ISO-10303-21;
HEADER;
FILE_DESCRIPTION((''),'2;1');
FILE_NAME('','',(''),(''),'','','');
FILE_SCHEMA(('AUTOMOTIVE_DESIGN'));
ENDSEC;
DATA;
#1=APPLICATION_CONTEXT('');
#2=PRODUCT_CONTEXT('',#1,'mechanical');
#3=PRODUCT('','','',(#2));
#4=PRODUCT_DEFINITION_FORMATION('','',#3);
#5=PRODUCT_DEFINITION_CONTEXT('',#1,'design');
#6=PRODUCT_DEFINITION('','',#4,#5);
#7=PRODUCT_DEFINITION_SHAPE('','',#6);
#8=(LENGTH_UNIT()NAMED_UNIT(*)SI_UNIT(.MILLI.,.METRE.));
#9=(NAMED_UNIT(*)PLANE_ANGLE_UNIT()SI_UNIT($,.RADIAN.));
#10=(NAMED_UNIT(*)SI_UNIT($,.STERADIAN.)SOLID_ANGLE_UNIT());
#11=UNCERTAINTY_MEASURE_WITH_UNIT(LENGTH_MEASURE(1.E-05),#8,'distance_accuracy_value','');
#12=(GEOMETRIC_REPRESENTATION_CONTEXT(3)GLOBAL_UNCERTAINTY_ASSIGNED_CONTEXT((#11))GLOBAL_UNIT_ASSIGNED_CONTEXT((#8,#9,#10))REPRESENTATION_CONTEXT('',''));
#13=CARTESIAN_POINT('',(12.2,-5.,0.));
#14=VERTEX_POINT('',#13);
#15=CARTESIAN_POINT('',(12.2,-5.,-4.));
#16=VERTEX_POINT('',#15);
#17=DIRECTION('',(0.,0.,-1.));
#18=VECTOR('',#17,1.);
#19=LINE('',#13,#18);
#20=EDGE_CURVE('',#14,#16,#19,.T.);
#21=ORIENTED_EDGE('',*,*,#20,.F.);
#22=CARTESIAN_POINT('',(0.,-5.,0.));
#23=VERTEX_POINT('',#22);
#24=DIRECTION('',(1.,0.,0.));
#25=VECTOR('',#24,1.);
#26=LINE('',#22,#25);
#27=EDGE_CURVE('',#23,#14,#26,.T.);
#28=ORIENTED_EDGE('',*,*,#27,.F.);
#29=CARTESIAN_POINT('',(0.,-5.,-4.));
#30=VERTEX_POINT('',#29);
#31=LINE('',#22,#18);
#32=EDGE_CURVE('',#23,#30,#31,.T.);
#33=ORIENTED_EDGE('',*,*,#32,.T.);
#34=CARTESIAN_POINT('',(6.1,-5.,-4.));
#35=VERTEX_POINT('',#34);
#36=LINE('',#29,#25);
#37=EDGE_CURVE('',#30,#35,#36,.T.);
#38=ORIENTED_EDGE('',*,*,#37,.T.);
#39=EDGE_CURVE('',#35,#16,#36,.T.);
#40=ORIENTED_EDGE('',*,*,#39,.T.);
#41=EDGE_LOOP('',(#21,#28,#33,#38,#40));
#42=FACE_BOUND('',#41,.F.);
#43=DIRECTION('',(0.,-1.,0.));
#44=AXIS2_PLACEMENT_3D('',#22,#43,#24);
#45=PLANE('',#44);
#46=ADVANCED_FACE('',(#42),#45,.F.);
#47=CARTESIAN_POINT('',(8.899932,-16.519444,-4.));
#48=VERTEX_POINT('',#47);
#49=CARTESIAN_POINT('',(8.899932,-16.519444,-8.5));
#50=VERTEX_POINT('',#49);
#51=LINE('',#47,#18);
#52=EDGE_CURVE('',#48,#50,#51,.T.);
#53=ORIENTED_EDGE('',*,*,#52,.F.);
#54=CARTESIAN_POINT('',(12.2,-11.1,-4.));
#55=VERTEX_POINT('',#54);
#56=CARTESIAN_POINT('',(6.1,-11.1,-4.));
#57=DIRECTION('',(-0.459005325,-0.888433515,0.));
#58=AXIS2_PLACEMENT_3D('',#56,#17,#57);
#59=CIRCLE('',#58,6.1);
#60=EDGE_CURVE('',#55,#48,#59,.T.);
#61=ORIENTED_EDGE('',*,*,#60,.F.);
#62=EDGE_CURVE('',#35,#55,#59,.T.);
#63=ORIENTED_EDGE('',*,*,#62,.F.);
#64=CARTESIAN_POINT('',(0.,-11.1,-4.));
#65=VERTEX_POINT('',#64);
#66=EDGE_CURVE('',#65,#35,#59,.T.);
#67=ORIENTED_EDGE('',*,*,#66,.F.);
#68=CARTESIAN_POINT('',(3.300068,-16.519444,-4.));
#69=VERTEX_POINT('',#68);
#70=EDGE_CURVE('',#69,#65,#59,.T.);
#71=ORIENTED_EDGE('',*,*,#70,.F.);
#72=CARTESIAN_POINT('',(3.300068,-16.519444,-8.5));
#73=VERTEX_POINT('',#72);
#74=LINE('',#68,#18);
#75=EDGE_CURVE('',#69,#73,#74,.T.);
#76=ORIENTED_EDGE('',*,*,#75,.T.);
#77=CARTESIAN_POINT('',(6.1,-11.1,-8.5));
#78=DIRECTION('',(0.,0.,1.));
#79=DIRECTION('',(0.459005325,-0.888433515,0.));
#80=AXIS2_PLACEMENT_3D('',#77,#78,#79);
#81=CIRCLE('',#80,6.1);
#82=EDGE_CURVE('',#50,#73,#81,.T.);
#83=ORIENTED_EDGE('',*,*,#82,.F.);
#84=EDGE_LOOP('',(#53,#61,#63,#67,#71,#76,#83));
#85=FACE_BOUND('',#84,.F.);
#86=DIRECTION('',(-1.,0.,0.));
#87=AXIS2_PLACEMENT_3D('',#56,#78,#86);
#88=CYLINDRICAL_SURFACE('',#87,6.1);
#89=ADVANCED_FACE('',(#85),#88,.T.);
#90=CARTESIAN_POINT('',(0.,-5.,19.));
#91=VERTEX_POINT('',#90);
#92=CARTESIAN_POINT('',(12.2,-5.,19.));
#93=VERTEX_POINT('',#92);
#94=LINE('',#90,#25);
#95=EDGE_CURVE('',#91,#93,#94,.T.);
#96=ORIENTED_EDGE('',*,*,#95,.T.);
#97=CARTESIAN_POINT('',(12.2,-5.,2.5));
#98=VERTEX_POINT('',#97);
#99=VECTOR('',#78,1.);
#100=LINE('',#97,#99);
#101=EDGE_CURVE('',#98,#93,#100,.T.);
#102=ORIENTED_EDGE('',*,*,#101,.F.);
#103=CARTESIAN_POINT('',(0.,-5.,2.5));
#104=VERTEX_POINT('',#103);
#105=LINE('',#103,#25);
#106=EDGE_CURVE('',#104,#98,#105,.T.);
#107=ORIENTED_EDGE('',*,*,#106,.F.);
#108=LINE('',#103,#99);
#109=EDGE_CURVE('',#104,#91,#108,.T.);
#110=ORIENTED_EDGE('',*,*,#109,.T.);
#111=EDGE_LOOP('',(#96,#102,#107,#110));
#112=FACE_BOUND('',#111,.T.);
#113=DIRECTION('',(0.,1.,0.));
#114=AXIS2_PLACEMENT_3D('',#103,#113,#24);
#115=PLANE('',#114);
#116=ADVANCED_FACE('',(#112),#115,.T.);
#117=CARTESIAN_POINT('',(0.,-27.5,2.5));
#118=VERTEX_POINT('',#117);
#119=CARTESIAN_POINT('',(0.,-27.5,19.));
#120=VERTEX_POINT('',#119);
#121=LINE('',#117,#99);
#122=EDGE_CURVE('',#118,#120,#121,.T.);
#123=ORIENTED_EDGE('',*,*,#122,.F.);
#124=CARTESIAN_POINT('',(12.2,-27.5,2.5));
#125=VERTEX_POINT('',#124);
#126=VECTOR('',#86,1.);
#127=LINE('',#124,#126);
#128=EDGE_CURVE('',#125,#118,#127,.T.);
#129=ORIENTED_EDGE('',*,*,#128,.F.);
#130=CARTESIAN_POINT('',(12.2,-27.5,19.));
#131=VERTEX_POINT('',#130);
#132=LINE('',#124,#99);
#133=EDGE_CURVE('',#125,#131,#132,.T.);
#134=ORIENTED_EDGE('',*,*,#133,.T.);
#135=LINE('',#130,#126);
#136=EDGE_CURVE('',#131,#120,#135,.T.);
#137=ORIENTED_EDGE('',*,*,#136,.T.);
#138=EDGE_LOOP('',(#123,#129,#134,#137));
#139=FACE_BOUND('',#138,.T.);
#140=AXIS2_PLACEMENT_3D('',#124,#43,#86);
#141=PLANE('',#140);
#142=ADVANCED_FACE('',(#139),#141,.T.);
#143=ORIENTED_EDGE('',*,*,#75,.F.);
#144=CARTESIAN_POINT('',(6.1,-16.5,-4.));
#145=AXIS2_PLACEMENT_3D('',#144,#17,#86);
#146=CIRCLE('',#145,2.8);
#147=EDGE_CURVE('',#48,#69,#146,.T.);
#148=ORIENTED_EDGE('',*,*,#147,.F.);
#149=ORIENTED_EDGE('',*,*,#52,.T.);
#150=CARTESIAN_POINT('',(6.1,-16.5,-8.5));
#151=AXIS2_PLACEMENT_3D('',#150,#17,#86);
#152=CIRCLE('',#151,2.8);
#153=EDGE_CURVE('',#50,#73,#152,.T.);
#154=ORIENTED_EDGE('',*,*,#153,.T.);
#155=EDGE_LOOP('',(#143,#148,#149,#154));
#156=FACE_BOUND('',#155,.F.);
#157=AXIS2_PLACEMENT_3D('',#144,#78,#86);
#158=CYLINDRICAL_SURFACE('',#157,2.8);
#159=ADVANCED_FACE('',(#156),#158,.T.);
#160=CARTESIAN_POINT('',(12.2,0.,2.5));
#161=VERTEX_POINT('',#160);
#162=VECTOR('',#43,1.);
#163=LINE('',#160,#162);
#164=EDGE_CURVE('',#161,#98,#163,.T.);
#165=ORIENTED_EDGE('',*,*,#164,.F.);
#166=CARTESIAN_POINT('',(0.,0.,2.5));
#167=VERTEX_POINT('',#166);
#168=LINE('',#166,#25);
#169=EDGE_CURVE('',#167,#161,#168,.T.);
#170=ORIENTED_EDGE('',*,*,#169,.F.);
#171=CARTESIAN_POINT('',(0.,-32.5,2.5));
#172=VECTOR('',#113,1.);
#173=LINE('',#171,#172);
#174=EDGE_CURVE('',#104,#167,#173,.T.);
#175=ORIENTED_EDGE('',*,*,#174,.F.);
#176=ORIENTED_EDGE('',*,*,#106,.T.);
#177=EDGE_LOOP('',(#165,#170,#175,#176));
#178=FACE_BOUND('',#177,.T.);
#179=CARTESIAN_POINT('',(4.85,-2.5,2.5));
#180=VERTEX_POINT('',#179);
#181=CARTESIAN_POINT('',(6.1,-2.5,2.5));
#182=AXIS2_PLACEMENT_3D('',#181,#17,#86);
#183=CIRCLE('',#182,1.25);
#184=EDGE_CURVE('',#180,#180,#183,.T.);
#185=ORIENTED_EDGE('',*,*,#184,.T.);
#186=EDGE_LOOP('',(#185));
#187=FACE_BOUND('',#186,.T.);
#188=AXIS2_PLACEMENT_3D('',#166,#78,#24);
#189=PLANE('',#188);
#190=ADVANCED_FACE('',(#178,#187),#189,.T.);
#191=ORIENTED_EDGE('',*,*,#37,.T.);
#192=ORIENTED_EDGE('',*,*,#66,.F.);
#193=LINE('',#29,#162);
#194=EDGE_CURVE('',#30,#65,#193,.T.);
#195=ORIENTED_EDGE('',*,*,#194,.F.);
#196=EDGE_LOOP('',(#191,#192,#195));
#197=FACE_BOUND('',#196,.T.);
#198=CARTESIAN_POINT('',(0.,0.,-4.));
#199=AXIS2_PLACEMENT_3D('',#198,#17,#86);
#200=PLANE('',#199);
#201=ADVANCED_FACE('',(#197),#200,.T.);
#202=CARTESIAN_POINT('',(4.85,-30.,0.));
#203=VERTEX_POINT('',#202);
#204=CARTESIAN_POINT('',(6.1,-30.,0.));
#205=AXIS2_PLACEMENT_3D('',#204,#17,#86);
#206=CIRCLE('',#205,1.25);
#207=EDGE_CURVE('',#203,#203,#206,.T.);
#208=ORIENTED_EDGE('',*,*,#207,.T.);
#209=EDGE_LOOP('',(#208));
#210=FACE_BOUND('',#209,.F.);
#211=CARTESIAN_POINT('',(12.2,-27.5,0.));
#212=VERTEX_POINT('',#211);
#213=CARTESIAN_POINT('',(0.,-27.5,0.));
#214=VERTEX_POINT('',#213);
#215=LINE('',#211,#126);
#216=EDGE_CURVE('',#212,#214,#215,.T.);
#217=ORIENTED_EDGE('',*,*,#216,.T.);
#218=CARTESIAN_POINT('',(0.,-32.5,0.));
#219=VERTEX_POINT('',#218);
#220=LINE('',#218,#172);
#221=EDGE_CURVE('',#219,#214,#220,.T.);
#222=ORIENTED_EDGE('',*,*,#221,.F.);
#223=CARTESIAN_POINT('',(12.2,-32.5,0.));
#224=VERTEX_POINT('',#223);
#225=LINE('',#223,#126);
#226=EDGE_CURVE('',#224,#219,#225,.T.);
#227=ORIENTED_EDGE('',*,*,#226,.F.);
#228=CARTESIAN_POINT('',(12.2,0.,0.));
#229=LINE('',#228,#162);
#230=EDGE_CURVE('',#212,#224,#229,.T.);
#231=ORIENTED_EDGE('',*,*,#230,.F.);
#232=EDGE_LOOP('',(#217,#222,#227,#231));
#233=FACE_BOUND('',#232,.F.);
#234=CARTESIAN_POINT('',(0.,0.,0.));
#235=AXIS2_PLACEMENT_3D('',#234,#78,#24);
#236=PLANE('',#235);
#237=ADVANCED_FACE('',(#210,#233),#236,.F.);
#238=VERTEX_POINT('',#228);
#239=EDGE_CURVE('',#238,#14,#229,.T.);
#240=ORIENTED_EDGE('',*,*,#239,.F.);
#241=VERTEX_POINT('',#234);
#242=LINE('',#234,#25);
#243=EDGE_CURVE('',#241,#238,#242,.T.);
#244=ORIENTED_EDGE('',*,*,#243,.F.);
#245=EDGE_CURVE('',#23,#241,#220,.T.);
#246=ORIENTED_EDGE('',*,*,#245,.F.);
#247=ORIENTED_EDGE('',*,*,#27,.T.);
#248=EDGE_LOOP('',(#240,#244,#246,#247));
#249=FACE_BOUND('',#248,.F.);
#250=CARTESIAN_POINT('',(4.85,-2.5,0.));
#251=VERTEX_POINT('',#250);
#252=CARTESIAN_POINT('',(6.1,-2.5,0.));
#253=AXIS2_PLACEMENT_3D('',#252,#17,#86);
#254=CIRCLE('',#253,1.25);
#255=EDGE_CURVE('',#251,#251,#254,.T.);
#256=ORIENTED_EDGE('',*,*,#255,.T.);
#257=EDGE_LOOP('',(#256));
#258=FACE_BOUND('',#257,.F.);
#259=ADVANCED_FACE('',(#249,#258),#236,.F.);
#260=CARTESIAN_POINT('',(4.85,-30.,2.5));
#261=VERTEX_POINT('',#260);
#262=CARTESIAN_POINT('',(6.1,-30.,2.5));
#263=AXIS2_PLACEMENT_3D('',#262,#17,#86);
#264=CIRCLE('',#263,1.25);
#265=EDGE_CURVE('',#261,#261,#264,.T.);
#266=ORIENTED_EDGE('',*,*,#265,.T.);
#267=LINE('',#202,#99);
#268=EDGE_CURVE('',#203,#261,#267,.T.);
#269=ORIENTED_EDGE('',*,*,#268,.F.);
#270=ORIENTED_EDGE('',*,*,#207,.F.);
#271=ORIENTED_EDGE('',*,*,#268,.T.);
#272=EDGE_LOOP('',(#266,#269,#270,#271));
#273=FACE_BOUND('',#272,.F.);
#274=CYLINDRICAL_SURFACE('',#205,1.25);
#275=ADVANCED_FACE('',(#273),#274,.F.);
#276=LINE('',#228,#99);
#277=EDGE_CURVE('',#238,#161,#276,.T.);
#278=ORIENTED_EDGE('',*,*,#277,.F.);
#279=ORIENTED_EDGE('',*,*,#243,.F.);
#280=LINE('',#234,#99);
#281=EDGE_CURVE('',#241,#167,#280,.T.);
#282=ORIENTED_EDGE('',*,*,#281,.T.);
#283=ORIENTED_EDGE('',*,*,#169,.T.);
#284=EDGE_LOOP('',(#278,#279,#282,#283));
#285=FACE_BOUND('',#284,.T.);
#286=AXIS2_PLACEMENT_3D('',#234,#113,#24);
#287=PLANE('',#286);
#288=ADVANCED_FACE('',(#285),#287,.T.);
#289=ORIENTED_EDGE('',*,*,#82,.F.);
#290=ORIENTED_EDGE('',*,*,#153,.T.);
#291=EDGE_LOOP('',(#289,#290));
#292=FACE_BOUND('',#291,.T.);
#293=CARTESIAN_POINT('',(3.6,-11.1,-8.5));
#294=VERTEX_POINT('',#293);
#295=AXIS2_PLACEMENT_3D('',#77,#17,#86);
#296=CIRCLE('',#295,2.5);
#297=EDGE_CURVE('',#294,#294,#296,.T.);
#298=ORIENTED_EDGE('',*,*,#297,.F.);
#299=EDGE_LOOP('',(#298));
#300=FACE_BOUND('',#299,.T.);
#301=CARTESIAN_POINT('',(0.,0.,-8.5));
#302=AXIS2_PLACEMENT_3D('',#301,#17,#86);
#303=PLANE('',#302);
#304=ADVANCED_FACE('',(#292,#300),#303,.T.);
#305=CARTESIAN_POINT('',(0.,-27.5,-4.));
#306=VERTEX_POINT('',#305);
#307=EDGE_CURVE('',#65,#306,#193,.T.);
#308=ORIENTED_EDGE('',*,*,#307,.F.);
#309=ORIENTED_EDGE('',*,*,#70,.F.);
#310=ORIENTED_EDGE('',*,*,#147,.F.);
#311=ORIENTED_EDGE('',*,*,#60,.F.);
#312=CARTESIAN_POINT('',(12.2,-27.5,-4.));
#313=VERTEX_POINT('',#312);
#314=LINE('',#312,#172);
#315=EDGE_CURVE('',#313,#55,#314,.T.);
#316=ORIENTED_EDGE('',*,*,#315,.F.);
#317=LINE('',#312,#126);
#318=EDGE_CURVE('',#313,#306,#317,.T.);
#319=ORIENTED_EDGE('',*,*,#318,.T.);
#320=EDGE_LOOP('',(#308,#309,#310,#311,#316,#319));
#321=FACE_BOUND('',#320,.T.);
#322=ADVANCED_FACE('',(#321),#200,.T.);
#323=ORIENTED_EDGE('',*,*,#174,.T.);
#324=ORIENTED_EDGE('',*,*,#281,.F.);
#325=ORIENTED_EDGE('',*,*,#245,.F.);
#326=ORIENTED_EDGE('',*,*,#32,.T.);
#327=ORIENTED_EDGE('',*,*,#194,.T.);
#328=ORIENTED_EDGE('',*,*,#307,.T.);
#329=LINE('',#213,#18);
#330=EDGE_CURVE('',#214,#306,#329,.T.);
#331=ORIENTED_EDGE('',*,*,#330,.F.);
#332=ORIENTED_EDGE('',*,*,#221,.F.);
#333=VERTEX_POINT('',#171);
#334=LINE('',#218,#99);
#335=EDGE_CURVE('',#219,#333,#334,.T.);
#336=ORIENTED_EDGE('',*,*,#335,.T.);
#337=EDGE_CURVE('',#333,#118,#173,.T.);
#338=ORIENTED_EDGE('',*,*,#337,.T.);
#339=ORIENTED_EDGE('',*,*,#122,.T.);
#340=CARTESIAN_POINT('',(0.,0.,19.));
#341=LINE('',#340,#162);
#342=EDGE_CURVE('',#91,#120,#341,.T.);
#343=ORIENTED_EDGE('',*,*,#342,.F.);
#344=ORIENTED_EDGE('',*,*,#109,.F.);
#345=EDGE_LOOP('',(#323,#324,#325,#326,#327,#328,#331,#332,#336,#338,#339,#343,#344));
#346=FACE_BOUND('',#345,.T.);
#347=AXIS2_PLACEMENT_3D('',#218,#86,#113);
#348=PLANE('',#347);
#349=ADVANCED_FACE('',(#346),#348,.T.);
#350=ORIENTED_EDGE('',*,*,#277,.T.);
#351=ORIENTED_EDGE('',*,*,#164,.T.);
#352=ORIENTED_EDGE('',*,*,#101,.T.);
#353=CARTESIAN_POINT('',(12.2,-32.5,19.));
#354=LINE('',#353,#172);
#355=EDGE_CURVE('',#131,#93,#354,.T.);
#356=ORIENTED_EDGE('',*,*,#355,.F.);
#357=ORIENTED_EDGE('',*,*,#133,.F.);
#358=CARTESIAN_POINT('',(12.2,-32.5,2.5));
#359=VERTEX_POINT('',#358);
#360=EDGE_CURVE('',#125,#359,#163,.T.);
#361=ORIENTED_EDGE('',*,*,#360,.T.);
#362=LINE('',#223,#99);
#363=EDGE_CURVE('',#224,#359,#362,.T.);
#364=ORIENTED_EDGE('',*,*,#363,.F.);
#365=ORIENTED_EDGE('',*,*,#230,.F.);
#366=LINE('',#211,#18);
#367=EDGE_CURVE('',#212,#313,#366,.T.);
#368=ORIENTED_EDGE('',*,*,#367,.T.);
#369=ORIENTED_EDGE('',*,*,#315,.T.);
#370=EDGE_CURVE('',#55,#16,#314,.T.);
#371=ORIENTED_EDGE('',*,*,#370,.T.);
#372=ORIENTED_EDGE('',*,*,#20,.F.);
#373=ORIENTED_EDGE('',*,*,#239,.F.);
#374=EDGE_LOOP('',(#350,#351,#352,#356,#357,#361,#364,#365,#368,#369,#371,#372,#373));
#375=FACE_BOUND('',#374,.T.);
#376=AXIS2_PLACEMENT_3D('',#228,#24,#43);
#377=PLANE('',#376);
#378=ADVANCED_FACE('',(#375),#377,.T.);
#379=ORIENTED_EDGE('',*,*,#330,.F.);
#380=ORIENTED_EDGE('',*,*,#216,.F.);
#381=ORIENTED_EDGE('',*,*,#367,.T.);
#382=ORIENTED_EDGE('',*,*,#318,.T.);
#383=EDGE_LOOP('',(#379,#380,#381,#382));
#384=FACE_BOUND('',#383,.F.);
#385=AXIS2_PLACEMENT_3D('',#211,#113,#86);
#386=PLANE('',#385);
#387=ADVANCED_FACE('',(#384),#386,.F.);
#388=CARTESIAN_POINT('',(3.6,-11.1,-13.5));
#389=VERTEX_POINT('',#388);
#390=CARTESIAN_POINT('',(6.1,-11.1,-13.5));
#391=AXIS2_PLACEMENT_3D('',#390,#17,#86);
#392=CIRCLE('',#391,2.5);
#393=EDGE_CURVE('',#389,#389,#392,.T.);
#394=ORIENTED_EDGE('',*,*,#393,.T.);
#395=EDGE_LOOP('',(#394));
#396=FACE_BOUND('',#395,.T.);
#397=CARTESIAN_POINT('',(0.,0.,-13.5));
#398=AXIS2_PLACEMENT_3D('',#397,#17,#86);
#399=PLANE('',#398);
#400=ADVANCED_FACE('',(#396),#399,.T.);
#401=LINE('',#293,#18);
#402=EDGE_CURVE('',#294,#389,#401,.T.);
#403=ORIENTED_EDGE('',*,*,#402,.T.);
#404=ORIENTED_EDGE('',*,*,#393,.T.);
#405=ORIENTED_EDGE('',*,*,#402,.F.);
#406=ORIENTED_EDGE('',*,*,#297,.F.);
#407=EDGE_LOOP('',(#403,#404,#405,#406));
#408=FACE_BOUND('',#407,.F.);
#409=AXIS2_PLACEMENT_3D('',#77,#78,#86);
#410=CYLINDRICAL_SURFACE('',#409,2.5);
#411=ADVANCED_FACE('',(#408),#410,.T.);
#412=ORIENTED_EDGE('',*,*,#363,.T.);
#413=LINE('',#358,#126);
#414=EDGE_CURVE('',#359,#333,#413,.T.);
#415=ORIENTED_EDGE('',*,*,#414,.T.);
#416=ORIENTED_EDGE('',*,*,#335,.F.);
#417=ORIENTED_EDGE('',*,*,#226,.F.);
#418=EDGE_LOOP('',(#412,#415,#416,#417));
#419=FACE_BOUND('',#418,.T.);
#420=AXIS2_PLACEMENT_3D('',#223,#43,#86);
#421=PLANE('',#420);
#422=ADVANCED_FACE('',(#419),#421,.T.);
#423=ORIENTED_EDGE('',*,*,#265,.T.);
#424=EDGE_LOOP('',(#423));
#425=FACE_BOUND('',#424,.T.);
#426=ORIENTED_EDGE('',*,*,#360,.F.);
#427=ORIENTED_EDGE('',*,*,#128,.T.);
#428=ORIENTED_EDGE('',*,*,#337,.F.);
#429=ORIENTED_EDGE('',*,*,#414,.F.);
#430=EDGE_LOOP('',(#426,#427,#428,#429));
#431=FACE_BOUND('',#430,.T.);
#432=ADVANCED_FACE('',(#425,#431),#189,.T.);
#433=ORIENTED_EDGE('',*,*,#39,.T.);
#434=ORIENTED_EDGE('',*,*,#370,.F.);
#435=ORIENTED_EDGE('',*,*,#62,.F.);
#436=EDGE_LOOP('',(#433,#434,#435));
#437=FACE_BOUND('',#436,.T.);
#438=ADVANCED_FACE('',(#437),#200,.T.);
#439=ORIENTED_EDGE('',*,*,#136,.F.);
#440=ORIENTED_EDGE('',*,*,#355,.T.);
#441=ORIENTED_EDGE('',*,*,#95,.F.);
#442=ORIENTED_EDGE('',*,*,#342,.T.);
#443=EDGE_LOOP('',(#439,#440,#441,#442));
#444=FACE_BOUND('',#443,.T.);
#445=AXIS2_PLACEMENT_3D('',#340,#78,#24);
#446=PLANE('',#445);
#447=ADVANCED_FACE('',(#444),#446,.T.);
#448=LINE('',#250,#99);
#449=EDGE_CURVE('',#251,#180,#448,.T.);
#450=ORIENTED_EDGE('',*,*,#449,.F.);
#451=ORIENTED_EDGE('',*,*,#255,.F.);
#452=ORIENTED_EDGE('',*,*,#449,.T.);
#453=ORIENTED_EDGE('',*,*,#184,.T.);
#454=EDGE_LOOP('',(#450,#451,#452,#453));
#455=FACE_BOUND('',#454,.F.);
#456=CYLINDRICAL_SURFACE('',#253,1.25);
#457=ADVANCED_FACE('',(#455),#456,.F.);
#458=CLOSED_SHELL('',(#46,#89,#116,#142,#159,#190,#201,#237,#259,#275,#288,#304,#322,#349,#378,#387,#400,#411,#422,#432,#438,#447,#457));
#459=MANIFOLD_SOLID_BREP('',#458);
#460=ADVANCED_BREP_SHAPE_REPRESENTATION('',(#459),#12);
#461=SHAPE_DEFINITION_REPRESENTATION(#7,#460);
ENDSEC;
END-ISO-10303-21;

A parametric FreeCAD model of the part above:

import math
import FreeCAD as App
import Part
import Sketcher

V = App.Vector


def add_polygon(sketch, points):
    """Adds a closed chain of lines whose ends are joined by coincident constraints."""
    first, n = sketch.GeometryCount, len(points)
    for a, b in zip(points, points[1:] + points[:1]):
        sketch.addGeometry(Part.LineSegment(App.Vector(*a, 0), App.Vector(*b, 0)), False)
    for i in range(n):
        sketch.addConstraint(Sketcher.Constraint("Coincident", first + i, 2, first + (i + 1) % n, 1))

doc = App.newDocument("Part")
body = doc.addObject("PartDesign::Body", "Body")

# Sketch on XY plane
sketch1 = body.newObject("Sketcher::SketchObject", "Sketch")
sketch1.AttachmentSupport = (doc.getObject("XY_Plane"), [""])
sketch1.MapMode = "FlatFace"
add_polygon(sketch1, [(12, 0), (0, 0), (0, -32), (12, -32)])  # lines 0-3
sketch1.addConstraint([
    Sketcher.Constraint("Horizontal", 0),
    Sketcher.Constraint("Vertical", 1),
    Sketcher.Constraint("Horizontal", 2),
    Sketcher.Constraint("Vertical", 3),
    Sketcher.Constraint("Coincident", 0, 2, -1, 1),
    Sketcher.Constraint("DistanceX", 0, 2, 0, 1, 12.2),
    Sketcher.Constraint("DistanceY", 1, 2, 1, 1, 32.5),
])
pad1 = body.newObject("PartDesign::Pad", "Pad")
pad1.Profile = sketch1
pad1.Length = 2.5

# Sketch on XY plane
sketch2 = body.newObject("Sketcher::SketchObject", "Sketch001")
sketch2.AttachmentSupport = (doc.getObject("XY_Plane"), [""])
sketch2.MapMode = "FlatFace"
sketch2.AttachmentOffset = App.Placement(V(0, 0, 2.5), App.Rotation())
add_polygon(sketch2, [(12, -5), (0, -5), (0, -28), (12, -28)])  # lines 0-3
sketch2.addConstraint([
    Sketcher.Constraint("Horizontal", 0),
    Sketcher.Constraint("Vertical", 1),
    Sketcher.Constraint("Horizontal", 2),
    Sketcher.Constraint("Vertical", 3),
    Sketcher.Constraint("PointOnObject", 0, 2, -2),
    Sketcher.Constraint("DistanceY", 1, 2, 1, 1, 22.5),
    Sketcher.Constraint("DistanceY", 0, 2, -1, 1, 5.0),
    Sketcher.Constraint("DistanceX", 0, 2, 0, 1, 12.2),
])
pad2 = body.newObject("PartDesign::Pad", "Pad001")
pad2.Profile = sketch2
pad2.Length = 16.5

# Sketch on XY plane
sketch3 = body.newObject("Sketcher::SketchObject", "Sketch002")
sketch3.AttachmentSupport = (doc.getObject("XY_Plane"), [""])
sketch3.MapMode = "FlatFace"
add_polygon(sketch3, [(0, -28), (0, -5), (12, -5), (12, -28)])  # lines 0-3
sketch3.addConstraint([
    Sketcher.Constraint("Vertical", 0),
    Sketcher.Constraint("Horizontal", 1),
    Sketcher.Constraint("Vertical", 2),
    Sketcher.Constraint("Horizontal", 3),
    Sketcher.Constraint("PointOnObject", 0, 2, -2),
    Sketcher.Constraint("DistanceX", 1, 1, 1, 2, 12.2),
    Sketcher.Constraint("DistanceY", 0, 1, 0, 2, 22.5),
    Sketcher.Constraint("DistanceY", 0, 2, -1, 1, 5.0),
])
pad3 = body.newObject("PartDesign::Pad", "Pad002")
pad3.Profile = sketch3
pad3.Length = 4
pad3.Reversed = True

# Sketch on XY plane
sketch4 = body.newObject("Sketcher::SketchObject", "Sketch003")
sketch4.AttachmentSupport = (doc.getObject("XY_Plane"), [""])
sketch4.MapMode = "FlatFace"
sketch4.addGeometry([
    Part.Circle(V(6.1, -2.5, 0), V(0, 0, 1), 1.2),
    Part.Circle(V(6.1, -30, 0), V(0, 0, 1), 1.2),
], False)
sketch4.addConstraint([
    Sketcher.Constraint("Equal", 0, 1),
    Sketcher.Constraint("Vertical", 0, 3, 1, 3),
    Sketcher.Constraint("Diameter", 0, 2.5),
    Sketcher.Constraint("DistanceX", -1, 1, 0, 3, 6.1),
    Sketcher.Constraint("DistanceY", 0, 3, -1, 1, 2.5),
    Sketcher.Constraint("DistanceY", 1, 3, -1, 1, 30.0),
])
pocket1 = body.newObject("PartDesign::Pocket", "Pocket")
pocket1.Profile = sketch4
pocket1.Length = 2.5
pocket1.Reversed = True

# Sketch on XY plane
sketch5 = body.newObject("Sketcher::SketchObject", "Sketch004")
sketch5.AttachmentSupport = (doc.getObject("XY_Plane"), [""])
sketch5.MapMode = "FlatFace"
sketch5.AttachmentOffset = App.Placement(V(0, 0, -4), App.Rotation())
sketch5.addGeometry([
    Part.ArcOfCircle(Part.Circle(V(6.1, -11.1, 0), V(0, 0, 1), 6.1), math.radians(-63), math.radians(243)),
    Part.ArcOfCircle(Part.Circle(V(6.1, -16.5, 0), V(0, 0, 1), 2.8), math.radians(-180), math.radians(0)),
], False)
sketch5.addConstraint([
    Sketcher.Constraint("Coincident", 0, 1, 1, 2),
    Sketcher.Constraint("Coincident", 1, 1, 0, 2),
    Sketcher.Constraint("Horizontal", 0, 1, 1, 1),
    Sketcher.Constraint("Radius", 0, 6.1),
    Sketcher.Constraint("Radius", 1, 2.8),
    Sketcher.Constraint("DistanceX", -1, 1, 0, 3, 6.1),
    Sketcher.Constraint("DistanceY", 0, 3, -1, 1, 11.1),
    Sketcher.Constraint("DistanceY", 1, 3, -1, 1, 16.5),
])
pad4 = body.newObject("PartDesign::Pad", "Pad003")
pad4.Profile = sketch5
pad4.Length = 4.5
pad4.Reversed = True

# Sketch on XY plane
sketch6 = body.newObject("Sketcher::SketchObject", "Sketch005")
sketch6.AttachmentSupport = (doc.getObject("XY_Plane"), [""])
sketch6.MapMode = "FlatFace"
sketch6.AttachmentOffset = App.Placement(V(0, 0, -8.5), App.Rotation())
sketch6.addGeometry(Part.Circle(V(6.1, -11.1, 0), V(0, 0, 1), 2.5), False)
sketch6.addConstraint([
    Sketcher.Constraint("Diameter", 0, 5.0),
    Sketcher.Constraint("DistanceX", -1, 1, 0, 3, 6.1),
    Sketcher.Constraint("DistanceY", 0, 3, -1, 1, 11.1),
])
pad5 = body.newObject("PartDesign::Pad", "Pad004")
pad5.Profile = sketch6
pad5.Length = 5
pad5.Reversed = True

doc.recompute()
